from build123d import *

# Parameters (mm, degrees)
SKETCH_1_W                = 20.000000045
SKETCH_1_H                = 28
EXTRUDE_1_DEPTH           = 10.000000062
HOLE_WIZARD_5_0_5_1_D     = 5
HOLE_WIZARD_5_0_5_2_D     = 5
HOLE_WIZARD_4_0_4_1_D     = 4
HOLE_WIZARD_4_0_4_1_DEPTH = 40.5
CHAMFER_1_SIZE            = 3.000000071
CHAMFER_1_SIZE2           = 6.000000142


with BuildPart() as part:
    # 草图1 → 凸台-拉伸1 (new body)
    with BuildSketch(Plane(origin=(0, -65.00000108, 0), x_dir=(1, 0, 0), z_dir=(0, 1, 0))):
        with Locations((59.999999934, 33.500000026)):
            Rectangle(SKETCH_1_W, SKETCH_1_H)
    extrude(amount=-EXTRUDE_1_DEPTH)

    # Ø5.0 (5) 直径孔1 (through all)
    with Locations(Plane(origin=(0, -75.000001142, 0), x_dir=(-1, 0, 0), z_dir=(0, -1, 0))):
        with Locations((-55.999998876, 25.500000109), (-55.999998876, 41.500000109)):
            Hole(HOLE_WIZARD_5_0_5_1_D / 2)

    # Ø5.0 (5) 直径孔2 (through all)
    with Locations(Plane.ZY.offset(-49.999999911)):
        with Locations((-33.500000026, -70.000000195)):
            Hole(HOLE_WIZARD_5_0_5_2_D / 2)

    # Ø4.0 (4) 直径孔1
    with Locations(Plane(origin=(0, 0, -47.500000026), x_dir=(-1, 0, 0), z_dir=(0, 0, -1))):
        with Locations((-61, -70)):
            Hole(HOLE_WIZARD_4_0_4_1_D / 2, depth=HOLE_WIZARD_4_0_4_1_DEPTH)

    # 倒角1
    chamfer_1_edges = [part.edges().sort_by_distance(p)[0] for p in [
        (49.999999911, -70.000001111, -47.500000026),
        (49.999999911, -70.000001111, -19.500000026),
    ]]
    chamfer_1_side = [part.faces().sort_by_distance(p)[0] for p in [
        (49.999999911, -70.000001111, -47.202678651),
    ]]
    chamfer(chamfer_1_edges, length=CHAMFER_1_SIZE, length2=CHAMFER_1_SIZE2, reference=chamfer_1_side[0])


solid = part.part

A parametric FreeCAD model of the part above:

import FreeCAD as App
import Part
import Sketcher

V = App.Vector


def edges_at(feature, points):
    """Names of the edges that pass closest to the given points."""
    edges = feature.Shape.Edges
    near = lambda p: min(range(len(edges)), key=lambda i: edges[i].distToShape(Part.Vertex(*p))[0])
    return sorted({f"Edge{near(p) + 1}" for p in points})


def add_polygon(sketch, points):
    """Adds a closed chain of lines whose ends are joined by coincident constraints."""
    first, n = sketch.GeometryCount, len(points)
    for a, b in zip(points, points[1:] + points[:1]):
        sketch.addGeometry(Part.LineSegment(App.Vector(*a, 0), App.Vector(*b, 0)), False)
    for i in range(n):
        sketch.addConstraint(Sketcher.Constraint("Coincident", first + i, 2, first + (i + 1) % n, 1))

doc = App.newDocument("Part")
body = doc.addObject("PartDesign::Body", "Body")

sketch1 = body.newObject("Sketcher::SketchObject", "Sketch")
sketch1.AttachmentSupport = (doc.getObject("XZ_Plane"), [""])
sketch1.MapMode = "FlatFace"
sketch1.AttachmentOffset = App.Placement(V(0, 0, 65.000001), App.Rotation())
add_polygon(sketch1, [(50, -47.5), (50, -19.5), (70, -19.5), (70, -47.5)])
sketch1.addConstraint(Sketcher.Constraint("Vertical", 0))
sketch1.addConstraint(Sketcher.Constraint("Horizontal", 1))
sketch1.addConstraint(Sketcher.Constraint("Vertical", 2))
sketch1.addConstraint(Sketcher.Constraint("Horizontal", 3))
sketch1.addConstraint(Sketcher.Constraint("DistanceX", 1, 1, 1, 2, 20.0))
sketch1.addConstraint(Sketcher.Constraint("DistanceY", 0, 1, 0, 2, 28.0))
sketch1.addConstraint(Sketcher.Constraint("DistanceX", -1, 1, 0, 2, 50.0))
sketch1.addConstraint(Sketcher.Constraint("DistanceY", 0, 2, -1, 1, 19.5))
pad1 = body.newObject("PartDesign::Pad", "Pad")
pad1.Profile = sketch1
pad1.Length = 10

sketch2 = body.newObject("Sketcher::SketchObject", "Sketch001")
sketch2.AttachmentSupport = (doc.getObject("XZ_Plane"), [""])
sketch2.MapMode = "FlatFace"
sketch2.AttachmentOffset = App.Placement(V(0, 0, 75.000001), App.Rotation())
sketch2.addGeometry(Part.Circle(V(55.999999, -25.5, 0), V(0, 0, 1), 2.5), False)
sketch2.addGeometry(Part.Circle(V(55.999999, -41.5, 0), V(0, 0, 1), 2.5), False)
sketch2.addConstraint(Sketcher.Constraint("Equal", 0, 1))
sketch2.addConstraint(Sketcher.Constraint("Vertical", 0, 3, 1, 3))
sketch2.addConstraint(Sketcher.Constraint("Diameter", 0, 5.0))
sketch2.addConstraint(Sketcher.Constraint("DistanceX", -1, 1, 0, 3, 55.999999))
sketch2.addConstraint(Sketcher.Constraint("DistanceY", 1, 3, 0, 3, 16.0))
sketch2.addConstraint(Sketcher.Constraint("DistanceY", 0, 3, -1, 1, 25.5))
doc.recompute()
hole = body.newObject("PartDesign::Hole", "Hole")
hole.Profile = sketch2
hole.ThreadType = "None"
hole.Diameter = 5
hole.DepthType = "ThroughAll"

sketch3 = body.newObject("Sketcher::SketchObject", "Sketch002")
sketch3.AttachmentSupport = (doc.getObject("YZ_Plane"), [""])
sketch3.MapMode = "FlatFace"
sketch3.AttachmentOffset = App.Placement(V(0, 0, 50), App.Rotation())
sketch3.addGeometry(Part.Circle(V(-70, -33.5, 0), V(0, 0, 1), 2.5), False)
sketch3.addConstraint(Sketcher.Constraint("Diameter", 0, 5.0))
sketch3.addConstraint(Sketcher.Constraint("DistanceX", 0, 3, -1, 1, 70.0))
sketch3.addConstraint(Sketcher.Constraint("DistanceY", 0, 3, -1, 1, 33.5))
doc.recompute()
hole2 = body.newObject("PartDesign::Hole", "Hole001")
hole2.Profile = sketch3
hole2.ThreadType = "None"
hole2.Diameter = 5
hole2.DepthType = "ThroughAll"
hole2.Reversed = True

sketch4 = body.newObject("Sketcher::SketchObject", "Sketch003")
sketch4.AttachmentSupport = (doc.getObject("XY_Plane"), [""])
sketch4.MapMode = "FlatFace"
sketch4.AttachmentOffset = App.Placement(V(0, 0, -47.5), App.Rotation())
sketch4.addGeometry(Part.Circle(V(61, -70, 0), V(0, 0, 1), 2), False)
sketch4.addConstraint(Sketcher.Constraint("Diameter", 0, 4.0))
sketch4.addConstraint(Sketcher.Constraint("DistanceX", -1, 1, 0, 3, 61.0))
sketch4.addConstraint(Sketcher.Constraint("DistanceY", 0, 3, -1, 1, 70.0))
doc.recompute()
hole3 = body.newObject("PartDesign::Hole", "Hole002")
hole3.Profile = sketch4
hole3.ThreadType = "None"
hole3.Diameter = 4
hole3.DepthType = "Dimension"
hole3.Depth = 40.5
hole3.DrillPoint = "Flat"
hole3.Reversed = True
doc.recompute()

chamfer = body.newObject("PartDesign::Chamfer", "Chamfer")
chamfer.Base = (hole3, edges_at(hole3, [(50, -70, -47.5), (50, -70, -19.5)]))
chamfer.ChamferType = "Two distances"
chamfer.Size = 3
chamfer.Size2 = 6

doc.recompute()
